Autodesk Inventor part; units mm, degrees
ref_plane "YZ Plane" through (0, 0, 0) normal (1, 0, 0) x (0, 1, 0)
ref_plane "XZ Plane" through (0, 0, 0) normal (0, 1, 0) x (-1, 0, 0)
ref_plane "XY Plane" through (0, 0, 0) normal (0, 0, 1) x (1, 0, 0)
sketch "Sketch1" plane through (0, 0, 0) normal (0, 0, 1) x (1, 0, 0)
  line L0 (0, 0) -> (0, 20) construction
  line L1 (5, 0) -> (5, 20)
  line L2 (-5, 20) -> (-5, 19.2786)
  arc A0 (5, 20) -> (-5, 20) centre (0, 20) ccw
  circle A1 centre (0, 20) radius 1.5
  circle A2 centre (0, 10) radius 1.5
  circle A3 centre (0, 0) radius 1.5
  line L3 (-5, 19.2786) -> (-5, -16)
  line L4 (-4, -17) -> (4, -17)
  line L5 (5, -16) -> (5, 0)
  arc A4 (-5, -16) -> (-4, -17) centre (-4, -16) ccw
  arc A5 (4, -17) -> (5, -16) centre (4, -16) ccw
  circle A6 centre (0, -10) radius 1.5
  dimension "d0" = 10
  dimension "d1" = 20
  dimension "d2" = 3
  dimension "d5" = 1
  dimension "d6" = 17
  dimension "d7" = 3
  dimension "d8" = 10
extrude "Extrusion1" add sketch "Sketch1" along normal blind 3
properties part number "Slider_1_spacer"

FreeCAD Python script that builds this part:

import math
import FreeCAD as App
import Part
import Sketcher
from FreeCAD import Vector
Q = App.Units.Quantity

doc = App.newDocument("Part")
body = doc.addObject("PartDesign::Body", "Body")

# Sketch on XY plane
sketch1 = body.newObject("Sketcher::SketchObject", "Sketch")
sketch1.AttachmentSupport = (doc.getObject("XY_Plane"), [""])
sketch1.MapMode = "FlatFace"
sketch1.addGeometry(Part.LineSegment(Vector(5, -16, 0), Vector(5, 20, 0)), False)
sketch1.addGeometry(Part.ArcOfCircle(Part.Circle(Vector(0, 20, 0), Vector(0, 0, 1), 5), math.radians(0), math.radians(180)), False)
sketch1.addGeometry(Part.LineSegment(Vector(-5, 20, 0), Vector(-5, -16, 0)), False)
sketch1.addGeometry(Part.ArcOfCircle(Part.Circle(Vector(-4, -16, 0), Vector(0, 0, 1), 1), math.radians(180), math.radians(270)), False)
sketch1.addGeometry(Part.LineSegment(Vector(-4, -17, 0), Vector(4, -17, 0)), False)
sketch1.addGeometry(Part.ArcOfCircle(Part.Circle(Vector(4, -16, 0), Vector(0, 0, 1), 1), math.radians(-90), math.radians(0)), False)
sketch1.addGeometry(Part.Circle(Vector(0, -10, 0), Vector(0, 0, 1), 1.5), False)
sketch1.addGeometry(Part.Circle(Vector(0, 0, 0), Vector(0, 0, 1), 1.5), False)
sketch1.addGeometry(Part.Circle(Vector(0, 10, 0), Vector(0, 0, 1), 1.5), False)
sketch1.addGeometry(Part.Circle(Vector(0, 20, 0), Vector(0, 0, 1), 1.5), False)
sketch1.addConstraint(Sketcher.Constraint("Tangent", 0, 2, 1, 1))
sketch1.addConstraint(Sketcher.Constraint("Tangent", 1, 2, 2, 1))
sketch1.addConstraint(Sketcher.Constraint("Tangent", 2, 2, 3, 1))
sketch1.addConstraint(Sketcher.Constraint("Tangent", 3, 2, 4, 1))
sketch1.addConstraint(Sketcher.Constraint("Tangent", 4, 2, 5, 1))
sketch1.addConstraint(Sketcher.Constraint("Tangent", 5, 2, 0, 1))
sketch1.addConstraint(Sketcher.Constraint("Vertical", 0))
sketch1.addConstraint(Sketcher.Constraint("Vertical", 2))
sketch1.addConstraint(Sketcher.Constraint("Horizontal", 4))
sketch1.addConstraint(Sketcher.Constraint("Coincident", 7, 3, -1, 1))
sketch1.addConstraint(Sketcher.Constraint("Coincident", 9, 3, 1, 3))
sketch1.addConstraint(Sketcher.Constraint("Equal", 3, 5))
sketch1.addConstraint(Sketcher.Constraint("Equal", 6, 7))
sketch1.addConstraint(Sketcher.Constraint("Equal", 7, 8))
sketch1.addConstraint(Sketcher.Constraint("Equal", 8, 9))
sketch1.addConstraint(Sketcher.Constraint("Symmetric", 6, 3, 8, 3, -1, 1))
sketch1.addConstraint(Sketcher.Constraint("PointOnObject", 1, 3, -2))
sketch1.addConstraint(Sketcher.Constraint("PointOnObject", 6, 3, -2))
sketch1.addConstraint(Sketcher.Constraint("Diameter", 6, Q("3 mm")))
sketch1.addConstraint(Sketcher.Constraint("Radius", 1, Q("5 mm")))
sketch1.addConstraint(Sketcher.Constraint("Radius", 3, Q("1 mm")))
sketch1.addConstraint(Sketcher.Constraint("DistanceY", -1, 1, 1, 3, Q("20 mm")))
sketch1.addConstraint(Sketcher.Constraint("DistanceY", 6, 3, -1, 1, Q("10 mm")))
sketch1.addConstraint(Sketcher.Constraint("DistanceY", 3, 2, -1, 1, Q("17 mm")))
pad1 = body.newObject("PartDesign::Pad", "Pad")
pad1.Profile = sketch1
pad1.Length = 3

doc.recompute()
